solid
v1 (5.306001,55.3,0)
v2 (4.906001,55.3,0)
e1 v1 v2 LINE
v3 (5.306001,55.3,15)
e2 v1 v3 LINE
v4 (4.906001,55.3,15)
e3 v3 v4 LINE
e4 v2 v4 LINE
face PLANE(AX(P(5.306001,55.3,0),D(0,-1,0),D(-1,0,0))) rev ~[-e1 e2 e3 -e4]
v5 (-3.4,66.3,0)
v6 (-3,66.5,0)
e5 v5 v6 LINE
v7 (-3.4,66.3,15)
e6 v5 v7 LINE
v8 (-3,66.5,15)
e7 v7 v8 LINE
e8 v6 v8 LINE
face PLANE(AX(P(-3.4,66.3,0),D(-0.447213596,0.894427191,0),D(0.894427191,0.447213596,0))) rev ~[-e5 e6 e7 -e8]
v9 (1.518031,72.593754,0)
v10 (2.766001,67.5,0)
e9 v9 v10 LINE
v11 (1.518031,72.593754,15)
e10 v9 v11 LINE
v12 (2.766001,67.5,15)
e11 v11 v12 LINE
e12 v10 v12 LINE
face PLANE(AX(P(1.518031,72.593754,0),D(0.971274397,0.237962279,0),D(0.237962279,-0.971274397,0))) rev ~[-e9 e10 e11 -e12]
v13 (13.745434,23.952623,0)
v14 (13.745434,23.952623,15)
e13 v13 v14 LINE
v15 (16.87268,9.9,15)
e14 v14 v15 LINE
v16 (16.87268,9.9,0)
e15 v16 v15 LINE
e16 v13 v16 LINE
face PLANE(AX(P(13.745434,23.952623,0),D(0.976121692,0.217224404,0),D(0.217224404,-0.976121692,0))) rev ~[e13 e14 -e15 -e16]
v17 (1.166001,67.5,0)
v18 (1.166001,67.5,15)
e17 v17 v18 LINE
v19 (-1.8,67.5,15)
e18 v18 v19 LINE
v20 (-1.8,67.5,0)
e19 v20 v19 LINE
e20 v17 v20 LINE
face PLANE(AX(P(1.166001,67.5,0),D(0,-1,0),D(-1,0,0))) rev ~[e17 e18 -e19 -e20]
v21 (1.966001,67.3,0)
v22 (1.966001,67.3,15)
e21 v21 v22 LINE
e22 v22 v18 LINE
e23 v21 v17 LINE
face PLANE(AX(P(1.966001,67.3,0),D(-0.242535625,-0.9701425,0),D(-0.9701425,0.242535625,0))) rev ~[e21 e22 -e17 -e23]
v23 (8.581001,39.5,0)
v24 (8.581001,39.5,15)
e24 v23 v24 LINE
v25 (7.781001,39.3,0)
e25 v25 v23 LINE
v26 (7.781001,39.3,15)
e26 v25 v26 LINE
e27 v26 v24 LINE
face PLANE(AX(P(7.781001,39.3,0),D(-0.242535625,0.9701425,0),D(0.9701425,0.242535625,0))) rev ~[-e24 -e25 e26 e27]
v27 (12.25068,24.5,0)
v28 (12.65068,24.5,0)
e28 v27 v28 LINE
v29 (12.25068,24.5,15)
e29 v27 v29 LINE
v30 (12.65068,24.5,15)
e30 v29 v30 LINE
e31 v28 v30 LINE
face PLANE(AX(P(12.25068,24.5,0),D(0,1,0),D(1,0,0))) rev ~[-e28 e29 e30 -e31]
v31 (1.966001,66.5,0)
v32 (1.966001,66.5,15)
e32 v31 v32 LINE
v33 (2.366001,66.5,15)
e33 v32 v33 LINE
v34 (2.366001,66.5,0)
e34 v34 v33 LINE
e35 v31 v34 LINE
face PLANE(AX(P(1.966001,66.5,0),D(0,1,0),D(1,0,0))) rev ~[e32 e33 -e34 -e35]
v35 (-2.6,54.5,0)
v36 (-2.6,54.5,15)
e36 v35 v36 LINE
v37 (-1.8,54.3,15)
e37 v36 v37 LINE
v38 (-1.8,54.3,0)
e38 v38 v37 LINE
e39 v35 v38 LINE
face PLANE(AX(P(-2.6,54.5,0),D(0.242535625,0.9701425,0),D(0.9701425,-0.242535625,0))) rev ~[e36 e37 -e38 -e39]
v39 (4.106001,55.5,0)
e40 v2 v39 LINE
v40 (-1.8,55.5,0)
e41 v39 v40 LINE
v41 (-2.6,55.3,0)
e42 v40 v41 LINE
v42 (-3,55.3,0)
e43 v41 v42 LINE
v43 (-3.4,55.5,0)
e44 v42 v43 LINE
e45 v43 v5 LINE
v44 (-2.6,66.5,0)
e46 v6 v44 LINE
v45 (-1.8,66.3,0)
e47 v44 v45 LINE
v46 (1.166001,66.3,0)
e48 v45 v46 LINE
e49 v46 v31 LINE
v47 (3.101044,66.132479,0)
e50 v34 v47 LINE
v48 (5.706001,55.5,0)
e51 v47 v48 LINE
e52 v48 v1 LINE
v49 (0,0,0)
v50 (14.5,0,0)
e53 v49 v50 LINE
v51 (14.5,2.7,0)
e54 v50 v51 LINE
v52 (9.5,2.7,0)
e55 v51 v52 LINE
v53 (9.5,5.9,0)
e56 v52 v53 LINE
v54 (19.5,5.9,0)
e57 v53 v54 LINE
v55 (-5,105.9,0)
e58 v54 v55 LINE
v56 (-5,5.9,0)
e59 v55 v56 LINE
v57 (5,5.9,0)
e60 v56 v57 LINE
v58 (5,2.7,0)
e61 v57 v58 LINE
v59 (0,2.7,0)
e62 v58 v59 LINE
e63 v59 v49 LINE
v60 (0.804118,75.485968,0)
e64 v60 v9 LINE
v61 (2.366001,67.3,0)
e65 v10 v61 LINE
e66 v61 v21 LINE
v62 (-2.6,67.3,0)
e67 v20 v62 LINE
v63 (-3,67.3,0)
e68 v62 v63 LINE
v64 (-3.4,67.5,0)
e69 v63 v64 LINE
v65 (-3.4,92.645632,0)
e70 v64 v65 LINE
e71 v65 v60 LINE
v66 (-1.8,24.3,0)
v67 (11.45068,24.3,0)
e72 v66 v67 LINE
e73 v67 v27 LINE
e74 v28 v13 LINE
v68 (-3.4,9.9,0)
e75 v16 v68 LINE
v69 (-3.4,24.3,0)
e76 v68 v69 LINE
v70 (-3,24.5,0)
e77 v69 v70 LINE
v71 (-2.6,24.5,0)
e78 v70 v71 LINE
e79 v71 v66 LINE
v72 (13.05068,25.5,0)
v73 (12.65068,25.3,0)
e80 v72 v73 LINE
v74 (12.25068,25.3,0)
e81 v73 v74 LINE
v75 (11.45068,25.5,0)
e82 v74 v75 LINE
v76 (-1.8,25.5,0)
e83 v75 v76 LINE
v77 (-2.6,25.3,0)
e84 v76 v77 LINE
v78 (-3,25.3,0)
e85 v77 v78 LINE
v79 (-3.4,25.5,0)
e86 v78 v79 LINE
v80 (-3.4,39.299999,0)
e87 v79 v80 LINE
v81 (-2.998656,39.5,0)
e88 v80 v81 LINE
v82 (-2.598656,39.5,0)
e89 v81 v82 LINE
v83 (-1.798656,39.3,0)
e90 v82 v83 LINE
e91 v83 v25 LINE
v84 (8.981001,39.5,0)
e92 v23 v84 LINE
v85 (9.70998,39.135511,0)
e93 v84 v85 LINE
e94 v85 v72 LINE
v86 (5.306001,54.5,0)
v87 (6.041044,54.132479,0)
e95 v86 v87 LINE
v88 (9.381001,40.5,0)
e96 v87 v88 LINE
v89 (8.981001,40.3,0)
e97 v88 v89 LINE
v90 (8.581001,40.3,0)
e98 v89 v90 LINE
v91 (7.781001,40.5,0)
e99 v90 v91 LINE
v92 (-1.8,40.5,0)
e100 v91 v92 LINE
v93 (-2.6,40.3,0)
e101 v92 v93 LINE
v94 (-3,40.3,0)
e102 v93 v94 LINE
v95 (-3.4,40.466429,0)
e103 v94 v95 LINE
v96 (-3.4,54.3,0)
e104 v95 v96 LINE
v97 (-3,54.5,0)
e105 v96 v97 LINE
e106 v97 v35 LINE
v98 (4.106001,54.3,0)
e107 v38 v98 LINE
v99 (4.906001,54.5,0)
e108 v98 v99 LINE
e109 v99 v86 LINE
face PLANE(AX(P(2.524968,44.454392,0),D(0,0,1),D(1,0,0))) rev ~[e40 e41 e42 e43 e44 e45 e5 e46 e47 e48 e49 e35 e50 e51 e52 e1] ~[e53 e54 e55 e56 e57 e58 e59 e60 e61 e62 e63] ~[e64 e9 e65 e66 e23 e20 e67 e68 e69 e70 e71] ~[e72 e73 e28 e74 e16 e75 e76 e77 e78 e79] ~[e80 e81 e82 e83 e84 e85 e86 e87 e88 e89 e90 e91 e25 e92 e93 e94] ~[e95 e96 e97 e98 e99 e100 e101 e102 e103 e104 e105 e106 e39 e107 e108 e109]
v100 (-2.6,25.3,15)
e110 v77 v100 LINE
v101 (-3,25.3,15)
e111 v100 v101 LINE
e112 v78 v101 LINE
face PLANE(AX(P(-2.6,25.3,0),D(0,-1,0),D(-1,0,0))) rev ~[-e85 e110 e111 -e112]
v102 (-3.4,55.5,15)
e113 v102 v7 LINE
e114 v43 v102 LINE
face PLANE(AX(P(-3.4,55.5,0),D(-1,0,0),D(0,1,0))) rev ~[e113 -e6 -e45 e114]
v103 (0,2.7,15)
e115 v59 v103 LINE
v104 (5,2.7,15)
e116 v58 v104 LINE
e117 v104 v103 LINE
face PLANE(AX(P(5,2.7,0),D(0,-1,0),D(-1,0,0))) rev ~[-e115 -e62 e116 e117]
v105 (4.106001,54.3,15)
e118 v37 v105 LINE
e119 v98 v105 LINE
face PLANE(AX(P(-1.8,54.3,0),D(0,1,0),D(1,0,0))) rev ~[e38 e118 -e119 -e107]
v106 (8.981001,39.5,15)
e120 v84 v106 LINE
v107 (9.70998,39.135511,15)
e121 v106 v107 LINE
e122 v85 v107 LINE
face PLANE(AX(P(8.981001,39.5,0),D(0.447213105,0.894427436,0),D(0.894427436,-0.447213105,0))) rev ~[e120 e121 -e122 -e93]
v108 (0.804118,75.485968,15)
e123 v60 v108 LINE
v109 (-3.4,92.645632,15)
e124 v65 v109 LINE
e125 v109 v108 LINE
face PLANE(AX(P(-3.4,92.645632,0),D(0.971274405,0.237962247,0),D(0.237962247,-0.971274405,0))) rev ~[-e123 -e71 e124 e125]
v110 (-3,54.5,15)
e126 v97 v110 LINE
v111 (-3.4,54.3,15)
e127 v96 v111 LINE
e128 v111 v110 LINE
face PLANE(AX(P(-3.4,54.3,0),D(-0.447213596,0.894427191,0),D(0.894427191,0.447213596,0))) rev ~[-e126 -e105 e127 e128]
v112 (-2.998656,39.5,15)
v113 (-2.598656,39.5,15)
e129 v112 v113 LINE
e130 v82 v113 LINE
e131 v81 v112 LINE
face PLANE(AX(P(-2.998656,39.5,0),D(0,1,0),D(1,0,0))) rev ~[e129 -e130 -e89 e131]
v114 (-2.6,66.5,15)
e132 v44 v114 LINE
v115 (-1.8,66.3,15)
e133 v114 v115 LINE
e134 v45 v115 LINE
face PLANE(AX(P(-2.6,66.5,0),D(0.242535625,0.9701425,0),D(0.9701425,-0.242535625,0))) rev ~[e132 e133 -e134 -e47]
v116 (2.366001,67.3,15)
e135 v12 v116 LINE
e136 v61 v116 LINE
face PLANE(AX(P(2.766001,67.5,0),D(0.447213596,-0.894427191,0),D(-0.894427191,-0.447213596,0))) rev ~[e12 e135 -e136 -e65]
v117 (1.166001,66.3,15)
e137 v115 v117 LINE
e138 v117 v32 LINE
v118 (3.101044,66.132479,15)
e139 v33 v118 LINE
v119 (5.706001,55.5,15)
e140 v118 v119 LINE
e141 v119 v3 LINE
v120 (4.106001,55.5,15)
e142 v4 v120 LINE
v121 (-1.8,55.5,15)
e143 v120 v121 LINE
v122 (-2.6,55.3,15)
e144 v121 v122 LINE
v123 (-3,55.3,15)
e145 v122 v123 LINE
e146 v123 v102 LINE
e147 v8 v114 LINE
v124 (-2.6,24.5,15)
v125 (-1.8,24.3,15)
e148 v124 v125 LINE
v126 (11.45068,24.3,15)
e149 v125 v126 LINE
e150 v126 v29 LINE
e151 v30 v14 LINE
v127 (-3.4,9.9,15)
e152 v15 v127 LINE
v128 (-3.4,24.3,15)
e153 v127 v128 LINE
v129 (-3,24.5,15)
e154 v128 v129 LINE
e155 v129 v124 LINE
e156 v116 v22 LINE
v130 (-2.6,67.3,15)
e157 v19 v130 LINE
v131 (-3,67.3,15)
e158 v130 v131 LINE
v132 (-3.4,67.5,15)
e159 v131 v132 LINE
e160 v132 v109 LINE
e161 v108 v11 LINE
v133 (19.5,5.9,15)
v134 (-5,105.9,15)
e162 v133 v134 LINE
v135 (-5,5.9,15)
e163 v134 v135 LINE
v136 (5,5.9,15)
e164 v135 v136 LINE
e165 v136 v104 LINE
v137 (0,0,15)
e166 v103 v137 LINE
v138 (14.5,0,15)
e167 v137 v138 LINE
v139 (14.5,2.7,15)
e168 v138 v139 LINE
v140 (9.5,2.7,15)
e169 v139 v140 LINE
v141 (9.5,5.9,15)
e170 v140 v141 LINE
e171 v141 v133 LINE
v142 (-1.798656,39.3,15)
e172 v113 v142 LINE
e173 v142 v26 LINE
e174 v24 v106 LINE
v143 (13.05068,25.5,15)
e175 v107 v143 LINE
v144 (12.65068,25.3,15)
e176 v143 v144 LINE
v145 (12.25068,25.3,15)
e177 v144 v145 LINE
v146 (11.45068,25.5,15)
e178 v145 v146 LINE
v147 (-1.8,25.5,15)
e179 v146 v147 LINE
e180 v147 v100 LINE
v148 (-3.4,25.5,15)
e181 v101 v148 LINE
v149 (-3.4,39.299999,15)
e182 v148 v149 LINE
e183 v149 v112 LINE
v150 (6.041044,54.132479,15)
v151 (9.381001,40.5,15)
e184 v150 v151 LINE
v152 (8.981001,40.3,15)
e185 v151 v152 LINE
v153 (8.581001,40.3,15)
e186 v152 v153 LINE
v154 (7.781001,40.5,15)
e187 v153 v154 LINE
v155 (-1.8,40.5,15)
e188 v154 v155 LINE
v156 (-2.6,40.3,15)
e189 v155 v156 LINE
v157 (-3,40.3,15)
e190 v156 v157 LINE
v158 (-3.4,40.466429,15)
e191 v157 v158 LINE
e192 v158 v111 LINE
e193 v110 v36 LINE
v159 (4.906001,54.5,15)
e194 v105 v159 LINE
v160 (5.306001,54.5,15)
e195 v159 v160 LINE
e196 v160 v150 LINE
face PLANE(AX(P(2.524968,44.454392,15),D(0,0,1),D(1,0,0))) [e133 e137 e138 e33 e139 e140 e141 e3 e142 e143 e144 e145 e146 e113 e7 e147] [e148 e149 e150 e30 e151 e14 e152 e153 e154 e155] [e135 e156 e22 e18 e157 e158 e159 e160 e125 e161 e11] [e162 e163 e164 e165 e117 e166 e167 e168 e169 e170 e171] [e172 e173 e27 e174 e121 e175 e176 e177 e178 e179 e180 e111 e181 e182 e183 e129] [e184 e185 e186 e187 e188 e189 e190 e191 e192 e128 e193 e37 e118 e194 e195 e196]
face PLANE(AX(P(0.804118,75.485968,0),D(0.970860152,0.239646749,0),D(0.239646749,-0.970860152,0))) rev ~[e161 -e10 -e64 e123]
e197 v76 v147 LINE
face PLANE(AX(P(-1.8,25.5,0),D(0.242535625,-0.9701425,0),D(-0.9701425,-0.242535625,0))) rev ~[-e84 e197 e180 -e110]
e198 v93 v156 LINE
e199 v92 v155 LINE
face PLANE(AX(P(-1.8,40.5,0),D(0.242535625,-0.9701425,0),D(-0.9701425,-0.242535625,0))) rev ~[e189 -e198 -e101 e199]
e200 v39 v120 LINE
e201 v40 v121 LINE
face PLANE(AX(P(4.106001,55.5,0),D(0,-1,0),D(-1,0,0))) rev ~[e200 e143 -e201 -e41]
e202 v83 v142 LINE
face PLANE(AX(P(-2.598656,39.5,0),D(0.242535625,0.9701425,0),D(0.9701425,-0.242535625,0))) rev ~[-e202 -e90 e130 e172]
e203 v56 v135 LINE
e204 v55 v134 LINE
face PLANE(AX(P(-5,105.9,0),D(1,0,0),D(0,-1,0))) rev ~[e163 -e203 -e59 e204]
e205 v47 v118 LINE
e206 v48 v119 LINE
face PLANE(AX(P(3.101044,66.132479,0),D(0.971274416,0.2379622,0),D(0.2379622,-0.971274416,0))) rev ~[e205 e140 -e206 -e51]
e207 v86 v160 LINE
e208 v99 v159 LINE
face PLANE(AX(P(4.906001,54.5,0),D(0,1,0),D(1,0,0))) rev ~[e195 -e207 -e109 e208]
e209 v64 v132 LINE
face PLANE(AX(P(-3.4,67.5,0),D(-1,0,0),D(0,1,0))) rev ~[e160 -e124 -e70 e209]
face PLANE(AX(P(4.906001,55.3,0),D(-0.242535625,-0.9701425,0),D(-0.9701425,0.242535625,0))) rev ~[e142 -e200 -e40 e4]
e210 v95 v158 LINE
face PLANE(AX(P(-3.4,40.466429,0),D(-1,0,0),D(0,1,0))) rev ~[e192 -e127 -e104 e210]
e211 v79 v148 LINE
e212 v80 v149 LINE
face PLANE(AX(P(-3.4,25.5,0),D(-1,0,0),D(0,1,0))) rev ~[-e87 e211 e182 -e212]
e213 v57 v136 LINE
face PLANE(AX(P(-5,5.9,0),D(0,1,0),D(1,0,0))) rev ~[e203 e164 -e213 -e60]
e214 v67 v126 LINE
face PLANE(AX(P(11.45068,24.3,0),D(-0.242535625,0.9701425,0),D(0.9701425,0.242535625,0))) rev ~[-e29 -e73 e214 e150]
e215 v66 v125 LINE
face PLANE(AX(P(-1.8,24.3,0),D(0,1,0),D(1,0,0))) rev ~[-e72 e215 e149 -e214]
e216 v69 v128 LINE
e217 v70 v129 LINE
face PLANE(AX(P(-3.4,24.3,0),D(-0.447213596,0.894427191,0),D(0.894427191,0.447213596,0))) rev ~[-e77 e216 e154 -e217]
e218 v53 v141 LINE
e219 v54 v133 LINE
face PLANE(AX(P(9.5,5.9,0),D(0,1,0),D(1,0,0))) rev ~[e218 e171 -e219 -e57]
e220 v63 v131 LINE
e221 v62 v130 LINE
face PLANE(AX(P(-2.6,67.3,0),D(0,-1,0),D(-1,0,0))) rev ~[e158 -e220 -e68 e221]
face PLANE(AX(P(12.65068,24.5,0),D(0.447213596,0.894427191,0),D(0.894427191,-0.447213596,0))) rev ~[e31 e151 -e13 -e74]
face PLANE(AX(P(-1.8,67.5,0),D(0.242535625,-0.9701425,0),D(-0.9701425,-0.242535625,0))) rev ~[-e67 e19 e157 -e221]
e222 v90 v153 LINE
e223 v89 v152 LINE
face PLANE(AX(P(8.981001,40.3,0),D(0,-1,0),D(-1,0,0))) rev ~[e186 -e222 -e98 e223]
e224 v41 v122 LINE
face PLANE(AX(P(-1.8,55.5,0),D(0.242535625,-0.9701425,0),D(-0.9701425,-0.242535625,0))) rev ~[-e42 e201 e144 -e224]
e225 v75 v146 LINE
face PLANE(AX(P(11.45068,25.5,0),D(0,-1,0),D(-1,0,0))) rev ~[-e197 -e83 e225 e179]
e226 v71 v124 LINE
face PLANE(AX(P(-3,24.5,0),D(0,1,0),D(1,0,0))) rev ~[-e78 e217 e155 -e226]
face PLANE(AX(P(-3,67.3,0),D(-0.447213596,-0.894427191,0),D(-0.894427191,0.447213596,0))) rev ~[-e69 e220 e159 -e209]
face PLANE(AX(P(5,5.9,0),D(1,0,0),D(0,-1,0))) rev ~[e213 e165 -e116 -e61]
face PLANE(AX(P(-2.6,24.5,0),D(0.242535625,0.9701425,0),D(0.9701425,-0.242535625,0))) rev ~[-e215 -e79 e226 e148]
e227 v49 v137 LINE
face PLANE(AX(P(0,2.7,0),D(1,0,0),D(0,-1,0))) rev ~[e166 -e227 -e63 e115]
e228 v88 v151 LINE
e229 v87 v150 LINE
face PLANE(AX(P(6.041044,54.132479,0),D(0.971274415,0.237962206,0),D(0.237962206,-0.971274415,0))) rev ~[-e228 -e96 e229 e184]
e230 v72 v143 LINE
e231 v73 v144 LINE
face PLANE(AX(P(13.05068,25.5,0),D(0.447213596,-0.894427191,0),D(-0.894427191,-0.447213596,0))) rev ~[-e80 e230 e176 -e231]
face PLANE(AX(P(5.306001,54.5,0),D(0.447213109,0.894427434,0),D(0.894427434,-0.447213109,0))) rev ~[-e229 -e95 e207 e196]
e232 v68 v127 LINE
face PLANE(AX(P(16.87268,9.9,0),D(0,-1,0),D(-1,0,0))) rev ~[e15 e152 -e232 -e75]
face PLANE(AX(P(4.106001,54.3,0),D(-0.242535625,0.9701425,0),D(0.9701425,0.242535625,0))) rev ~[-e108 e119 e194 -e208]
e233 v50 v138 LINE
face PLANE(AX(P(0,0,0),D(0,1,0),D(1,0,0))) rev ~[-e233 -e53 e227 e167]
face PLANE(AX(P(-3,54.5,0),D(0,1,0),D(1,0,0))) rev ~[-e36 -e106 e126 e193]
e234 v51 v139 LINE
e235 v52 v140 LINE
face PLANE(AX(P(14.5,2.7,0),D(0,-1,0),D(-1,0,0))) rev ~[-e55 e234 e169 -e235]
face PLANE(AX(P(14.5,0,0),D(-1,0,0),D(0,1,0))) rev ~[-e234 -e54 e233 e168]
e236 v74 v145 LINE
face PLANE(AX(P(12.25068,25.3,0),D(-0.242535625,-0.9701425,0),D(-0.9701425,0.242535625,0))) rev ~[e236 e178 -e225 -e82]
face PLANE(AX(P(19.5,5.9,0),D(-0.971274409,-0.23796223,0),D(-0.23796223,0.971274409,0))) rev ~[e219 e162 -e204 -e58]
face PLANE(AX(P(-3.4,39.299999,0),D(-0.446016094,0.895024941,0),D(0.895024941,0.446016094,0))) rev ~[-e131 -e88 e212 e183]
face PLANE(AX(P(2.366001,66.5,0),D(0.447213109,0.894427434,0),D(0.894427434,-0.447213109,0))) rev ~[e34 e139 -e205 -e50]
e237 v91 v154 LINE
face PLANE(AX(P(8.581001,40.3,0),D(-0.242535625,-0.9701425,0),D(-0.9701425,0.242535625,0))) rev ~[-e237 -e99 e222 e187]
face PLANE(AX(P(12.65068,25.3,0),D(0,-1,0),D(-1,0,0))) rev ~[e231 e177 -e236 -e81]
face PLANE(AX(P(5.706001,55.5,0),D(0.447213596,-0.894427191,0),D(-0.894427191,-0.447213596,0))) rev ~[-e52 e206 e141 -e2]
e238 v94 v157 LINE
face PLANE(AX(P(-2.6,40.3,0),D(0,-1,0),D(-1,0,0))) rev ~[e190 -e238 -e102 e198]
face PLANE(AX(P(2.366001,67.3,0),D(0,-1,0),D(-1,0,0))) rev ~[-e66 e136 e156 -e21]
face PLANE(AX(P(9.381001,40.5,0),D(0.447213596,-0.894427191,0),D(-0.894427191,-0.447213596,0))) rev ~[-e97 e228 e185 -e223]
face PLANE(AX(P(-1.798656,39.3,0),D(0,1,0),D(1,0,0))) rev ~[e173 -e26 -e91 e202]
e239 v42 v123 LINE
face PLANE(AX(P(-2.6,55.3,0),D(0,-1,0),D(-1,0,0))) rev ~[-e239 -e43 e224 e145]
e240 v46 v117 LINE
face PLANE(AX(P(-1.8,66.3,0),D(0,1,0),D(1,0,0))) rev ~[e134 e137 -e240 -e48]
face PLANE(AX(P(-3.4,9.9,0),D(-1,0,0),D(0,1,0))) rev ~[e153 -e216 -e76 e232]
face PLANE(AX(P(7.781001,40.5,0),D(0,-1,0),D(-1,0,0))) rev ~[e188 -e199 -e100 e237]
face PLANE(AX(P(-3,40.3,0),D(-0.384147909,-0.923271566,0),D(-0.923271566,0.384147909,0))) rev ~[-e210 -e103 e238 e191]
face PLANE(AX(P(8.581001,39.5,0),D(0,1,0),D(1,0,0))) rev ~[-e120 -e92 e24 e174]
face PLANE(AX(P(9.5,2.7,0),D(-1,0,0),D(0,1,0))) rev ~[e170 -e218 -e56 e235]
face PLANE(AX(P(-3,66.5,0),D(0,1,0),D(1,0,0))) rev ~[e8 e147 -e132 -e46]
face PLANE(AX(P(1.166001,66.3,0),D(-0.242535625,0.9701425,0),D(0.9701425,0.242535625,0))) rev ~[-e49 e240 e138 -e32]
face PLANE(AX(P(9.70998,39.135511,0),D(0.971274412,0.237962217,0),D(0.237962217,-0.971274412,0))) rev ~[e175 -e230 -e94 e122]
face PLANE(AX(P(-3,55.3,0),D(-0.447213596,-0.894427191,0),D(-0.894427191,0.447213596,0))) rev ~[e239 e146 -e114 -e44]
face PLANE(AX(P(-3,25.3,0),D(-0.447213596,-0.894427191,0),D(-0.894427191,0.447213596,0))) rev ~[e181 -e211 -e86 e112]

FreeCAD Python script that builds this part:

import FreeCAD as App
import Part
import Sketcher

doc = App.newDocument("Part")
body = doc.addObject("PartDesign::Body", "Body")

sketch1 = body.newObject("Sketcher::SketchObject", "Sketch")
sketch1.AttachmentSupport = (doc.getObject("XY_Plane"), [""])
sketch1.MapMode = "FlatFace"
sketch1.addGeometry(Part.LineSegment(App.Vector(0, 2.7, 0), App.Vector(0, 0, 0)), False)
sketch1.addGeometry(Part.LineSegment(App.Vector(0, 0, 0), App.Vector(14.5, 0, 0)), False)
sketch1.addGeometry(Part.LineSegment(App.Vector(14.5, 0, 0), App.Vector(14.5, 2.7, 0)), False)
sketch1.addGeometry(Part.LineSegment(App.Vector(14.5, 2.7, 0), App.Vector(9.5, 2.7, 0)), False)
sketch1.addGeometry(Part.LineSegment(App.Vector(9.5, 2.7, 0), App.Vector(9.5, 5.9, 0)), False)
sketch1.addGeometry(Part.LineSegment(App.Vector(9.5, 5.9, 0), App.Vector(19.5, 5.9, 0)), False)
sketch1.addGeometry(Part.LineSegment(App.Vector(19.5, 5.9, 0), App.Vector(-5, 105.9, 0)), False)
sketch1.addGeometry(Part.LineSegment(App.Vector(-5, 105.9, 0), App.Vector(-5, 5.9, 0)), False)
sketch1.addGeometry(Part.LineSegment(App.Vector(-5, 5.9, 0), App.Vector(5, 5.9, 0)), False)
sketch1.addGeometry(Part.LineSegment(App.Vector(5, 5.9, 0), App.Vector(5, 2.7, 0)), False)
sketch1.addGeometry(Part.LineSegment(App.Vector(5, 2.7, 0), App.Vector(0, 2.7, 0)), False)
sketch1.addGeometry(Part.LineSegment(App.Vector(8.58, 39.5, 0), App.Vector(8.98, 39.5, 0)), False)
sketch1.addGeometry(Part.LineSegment(App.Vector(8.98, 39.5, 0), App.Vector(9.71, 39.14, 0)), False)
sketch1.addGeometry(Part.LineSegment(App.Vector(9.71, 39.14, 0), App.Vector(13.05, 25.5, 0)), False)
sketch1.addGeometry(Part.LineSegment(App.Vector(13.05, 25.5, 0), App.Vector(12.65, 25.3, 0)), False)
sketch1.addGeometry(Part.LineSegment(App.Vector(12.65, 25.3, 0), App.Vector(12.25, 25.3, 0)), False)
sketch1.addGeometry(Part.LineSegment(App.Vector(12.25, 25.3, 0), App.Vector(11.45, 25.5, 0)), False)
sketch1.addGeometry(Part.LineSegment(App.Vector(11.45, 25.5, 0), App.Vector(-1.8, 25.5, 0)), False)
sketch1.addGeometry(Part.LineSegment(App.Vector(-1.8, 25.5, 0), App.Vector(-2.6, 25.3, 0)), False)
sketch1.addGeometry(Part.LineSegment(App.Vector(-2.6, 25.3, 0), App.Vector(-3, 25.3, 0)), False)
sketch1.addGeometry(Part.LineSegment(App.Vector(-3, 25.3, 0), App.Vector(-3.4, 25.5, 0)), False)
sketch1.addGeometry(Part.LineSegment(App.Vector(-3.4, 25.5, 0), App.Vector(-3.4, 39.3, 0)), False)
sketch1.addGeometry(Part.LineSegment(App.Vector(-3.4, 39.3, 0), App.Vector(-3, 39.5, 0)), False)
sketch1.addGeometry(Part.LineSegment(App.Vector(-3, 39.5, 0), App.Vector(-2.6, 39.5, 0)), False)
sketch1.addGeometry(Part.LineSegment(App.Vector(-2.6, 39.5, 0), App.Vector(-1.8, 39.3, 0)), False)
sketch1.addGeometry(Part.LineSegment(App.Vector(-1.8, 39.3, 0), App.Vector(7.78, 39.3, 0)), False)
sketch1.addGeometry(Part.LineSegment(App.Vector(7.78, 39.3, 0), App.Vector(8.58, 39.5, 0)), False)
sketch1.addGeometry(Part.LineSegment(App.Vector(4.91, 54.5, 0), App.Vector(5.31, 54.5, 0)), False)
sketch1.addGeometry(Part.LineSegment(App.Vector(5.31, 54.5, 0), App.Vector(6.04, 54.13, 0)), False)
sketch1.addGeometry(Part.LineSegment(App.Vector(6.04, 54.13, 0), App.Vector(9.38, 40.5, 0)), False)
sketch1.addGeometry(Part.LineSegment(App.Vector(9.38, 40.5, 0), App.Vector(8.98, 40.3, 0)), False)
sketch1.addGeometry(Part.LineSegment(App.Vector(8.98, 40.3, 0), App.Vector(8.58, 40.3, 0)), False)
sketch1.addGeometry(Part.LineSegment(App.Vector(8.58, 40.3, 0), App.Vector(7.78, 40.5, 0)), False)
sketch1.addGeometry(Part.LineSegment(App.Vector(7.78, 40.5, 0), App.Vector(-1.8, 40.5, 0)), False)
sketch1.addGeometry(Part.LineSegment(App.Vector(-1.8, 40.5, 0), App.Vector(-2.6, 40.3, 0)), False)
sketch1.addGeometry(Part.LineSegment(App.Vector(-2.6, 40.3, 0), App.Vector(-3, 40.3, 0)), False)
sketch1.addGeometry(Part.LineSegment(App.Vector(-3, 40.3, 0), App.Vector(-3.4, 40.47, 0)), False)
sketch1.addGeometry(Part.LineSegment(App.Vector(-3.4, 40.47, 0), App.Vector(-3.4, 54.3, 0)), False)
sketch1.addGeometry(Part.LineSegment(App.Vector(-3.4, 54.3, 0), App.Vector(-3, 54.5, 0)), False)
sketch1.addGeometry(Part.LineSegment(App.Vector(-3, 54.5, 0), App.Vector(-2.6, 54.5, 0)), False)
sketch1.addGeometry(Part.LineSegment(App.Vector(-2.6, 54.5, 0), App.Vector(-1.8, 54.3, 0)), False)
sketch1.addGeometry(Part.LineSegment(App.Vector(-1.8, 54.3, 0), App.Vector(4.11, 54.3, 0)), False)
sketch1.addGeometry(Part.LineSegment(App.Vector(4.11, 54.3, 0), App.Vector(4.91, 54.5, 0)), False)
sketch1.addGeometry(Part.LineSegment(App.Vector(13.75, 23.95, 0), App.Vector(16.87, 9.9, 0)), False)
sketch1.addGeometry(Part.LineSegment(App.Vector(16.87, 9.9, 0), App.Vector(-3.4, 9.9, 0)), False)
sketch1.addGeometry(Part.LineSegment(App.Vector(-3.4, 9.9, 0), App.Vector(-3.4, 24.3, 0)), False)
sketch1.addGeometry(Part.LineSegment(App.Vector(-3.4, 24.3, 0), App.Vector(-3, 24.5, 0)), False)
sketch1.addGeometry(Part.LineSegment(App.Vector(-3, 24.5, 0), App.Vector(-2.6, 24.5, 0)), False)
sketch1.addGeometry(Part.LineSegment(App.Vector(-2.6, 24.5, 0), App.Vector(-1.8, 24.3, 0)), False)
sketch1.addGeometry(Part.LineSegment(App.Vector(-1.8, 24.3, 0), App.Vector(11.45, 24.3, 0)), False)
sketch1.addGeometry(Part.LineSegment(App.Vector(11.45, 24.3, 0), App.Vector(12.25, 24.5, 0)), False)
sketch1.addGeometry(Part.LineSegment(App.Vector(12.25, 24.5, 0), App.Vector(12.65, 24.5, 0)), False)
sketch1.addGeometry(Part.LineSegment(App.Vector(12.65, 24.5, 0), App.Vector(13.75, 23.95, 0)), False)
sketch1.addGeometry(Part.LineSegment(App.Vector(1.97, 66.5, 0), App.Vector(2.37, 66.5, 0)), False)
sketch1.addGeometry(Part.LineSegment(App.Vector(2.37, 66.5, 0), App.Vector(3.1, 66.13, 0)), False)
sketch1.addGeometry(Part.LineSegment(App.Vector(3.1, 66.13, 0), App.Vector(5.71, 55.5, 0)), False)
sketch1.addGeometry(Part.LineSegment(App.Vector(5.71, 55.5, 0), App.Vector(5.31, 55.3, 0)), False)
sketch1.addGeometry(Part.LineSegment(App.Vector(5.31, 55.3, 0), App.Vector(4.91, 55.3, 0)), False)
sketch1.addGeometry(Part.LineSegment(App.Vector(4.91, 55.3, 0), App.Vector(4.11, 55.5, 0)), False)
sketch1.addGeometry(Part.LineSegment(App.Vector(4.11, 55.5, 0), App.Vector(-1.8, 55.5, 0)), False)
sketch1.addGeometry(Part.LineSegment(App.Vector(-1.8, 55.5, 0), App.Vector(-2.6, 55.3, 0)), False)
sketch1.addGeometry(Part.LineSegment(App.Vector(-2.6, 55.3, 0), App.Vector(-3, 55.3, 0)), False)
sketch1.addGeometry(Part.LineSegment(App.Vector(-3, 55.3, 0), App.Vector(-3.4, 55.5, 0)), False)
sketch1.addGeometry(Part.LineSegment(App.Vector(-3.4, 55.5, 0), App.Vector(-3.4, 66.3, 0)), False)
sketch1.addGeometry(Part.LineSegment(App.Vector(-3.4, 66.3, 0), App.Vector(-3, 66.5, 0)), False)
sketch1.addGeometry(Part.LineSegment(App.Vector(-3, 66.5, 0), App.Vector(-2.6, 66.5, 0)), False)
sketch1.addGeometry(Part.LineSegment(App.Vector(-2.6, 66.5, 0), App.Vector(-1.8, 66.3, 0)), False)
sketch1.addGeometry(Part.LineSegment(App.Vector(-1.8, 66.3, 0), App.Vector(1.17, 66.3, 0)), False)
sketch1.addGeometry(Part.LineSegment(App.Vector(1.17, 66.3, 0), App.Vector(1.97, 66.5, 0)), False)
sketch1.addGeometry(Part.LineSegment(App.Vector(-3.4, 67.5, 0), App.Vector(-3.4, 92.65, 0)), False)
sketch1.addGeometry(Part.LineSegment(App.Vector(-3.4, 92.65, 0), App.Vector(0.8, 75.49, 0)), False)
sketch1.addGeometry(Part.LineSegment(App.Vector(0.8, 75.49, 0), App.Vector(1.52, 72.59, 0)), False)
sketch1.addGeometry(Part.LineSegment(App.Vector(1.52, 72.59, 0), App.Vector(2.77, 67.5, 0)), False)
sketch1.addGeometry(Part.LineSegment(App.Vector(2.77, 67.5, 0), App.Vector(2.37, 67.3, 0)), False)
sketch1.addGeometry(Part.LineSegment(App.Vector(2.37, 67.3, 0), App.Vector(1.97, 67.3, 0)), False)
sketch1.addGeometry(Part.LineSegment(App.Vector(1.97, 67.3, 0), App.Vector(1.17, 67.5, 0)), False)
sketch1.addGeometry(Part.LineSegment(App.Vector(1.17, 67.5, 0), App.Vector(-1.8, 67.5, 0)), False)
sketch1.addGeometry(Part.LineSegment(App.Vector(-1.8, 67.5, 0), App.Vector(-2.6, 67.3, 0)), False)
sketch1.addGeometry(Part.LineSegment(App.Vector(-2.6, 67.3, 0), App.Vector(-3, 67.3, 0)), False)
sketch1.addGeometry(Part.LineSegment(App.Vector(-3, 67.3, 0), App.Vector(-3.4, 67.5, 0)), False)
sketch1.addConstraint(Sketcher.Constraint("Coincident", 0, 2, 1, 1))
sketch1.addConstraint(Sketcher.Constraint("Coincident", 1, 2, 2, 1))
sketch1.addConstraint(Sketcher.Constraint("Coincident", 2, 2, 3, 1))
sketch1.addConstraint(Sketcher.Constraint("Coincident", 3, 2, 4, 1))
sketch1.addConstraint(Sketcher.Constraint("Coincident", 4, 2, 5, 1))
sketch1.addConstraint(Sketcher.Constraint("Coincident", 5, 2, 6, 1))
sketch1.addConstraint(Sketcher.Constraint("Coincident", 6, 2, 7, 1))
sketch1.addConstraint(Sketcher.Constraint("Coincident", 7, 2, 8, 1))
sketch1.addConstraint(Sketcher.Constraint("Coincident", 8, 2, 9, 1))
sketch1.addConstraint(Sketcher.Constraint("Coincident", 9, 2, 10, 1))
sketch1.addConstraint(Sketcher.Constraint("Coincident", 10, 2, 0, 1))
sketch1.addConstraint(Sketcher.Constraint("Coincident", 11, 2, 12, 1))
sketch1.addConstraint(Sketcher.Constraint("Coincident", 12, 2, 13, 1))
sketch1.addConstraint(Sketcher.Constraint("Coincident", 13, 2, 14, 1))
sketch1.addConstraint(Sketcher.Constraint("Coincident", 14, 2, 15, 1))
sketch1.addConstraint(Sketcher.Constraint("Coincident", 15, 2, 16, 1))
sketch1.addConstraint(Sketcher.Constraint("Coincident", 16, 2, 17, 1))
sketch1.addConstraint(Sketcher.Constraint("Coincident", 17, 2, 18, 1))
sketch1.addConstraint(Sketcher.Constraint("Coincident", 18, 2, 19, 1))
sketch1.addConstraint(Sketcher.Constraint("Coincident", 19, 2, 20, 1))
sketch1.addConstraint(Sketcher.Constraint("Coincident", 20, 2, 21, 1))
sketch1.addConstraint(Sketcher.Constraint("Coincident", 21, 2, 22, 1))
sketch1.addConstraint(Sketcher.Constraint("Coincident", 22, 2, 23, 1))
sketch1.addConstraint(Sketcher.Constraint("Coincident", 23, 2, 24, 1))
sketch1.addConstraint(Sketcher.Constraint("Coincident", 24, 2, 25, 1))
sketch1.addConstraint(Sketcher.Constraint("Coincident", 25, 2, 26, 1))
sketch1.addConstraint(Sketcher.Constraint("Coincident", 26, 2, 11, 1))
sketch1.addConstraint(Sketcher.Constraint("Coincident", 27, 2, 28, 1))
sketch1.addConstraint(Sketcher.Constraint("Coincident", 28, 2, 29, 1))
sketch1.addConstraint(Sketcher.Constraint("Coincident", 29, 2, 30, 1))
sketch1.addConstraint(Sketcher.Constraint("Coincident", 30, 2, 31, 1))
sketch1.addConstraint(Sketcher.Constraint("Coincident", 31, 2, 32, 1))
sketch1.addConstraint(Sketcher.Constraint("Coincident", 32, 2, 33, 1))
sketch1.addConstraint(Sketcher.Constraint("Coincident", 33, 2, 34, 1))
sketch1.addConstraint(Sketcher.Constraint("Coincident", 34, 2, 35, 1))
sketch1.addConstraint(Sketcher.Constraint("Coincident", 35, 2, 36, 1))
sketch1.addConstraint(Sketcher.Constraint("Coincident", 36, 2, 37, 1))
sketch1.addConstraint(Sketcher.Constraint("Coincident", 37, 2, 38, 1))
sketch1.addConstraint(Sketcher.Constraint("Coincident", 38, 2, 39, 1))
sketch1.addConstraint(Sketcher.Constraint("Coincident", 39, 2, 40, 1))
sketch1.addConstraint(Sketcher.Constraint("Coincident", 40, 2, 41, 1))
sketch1.addConstraint(Sketcher.Constraint("Coincident", 41, 2, 42, 1))
sketch1.addConstraint(Sketcher.Constraint("Coincident", 42, 2, 27, 1))
sketch1.addConstraint(Sketcher.Constraint("Coincident", 43, 2, 44, 1))
sketch1.addConstraint(Sketcher.Constraint("Coincident", 44, 2, 45, 1))
sketch1.addConstraint(Sketcher.Constraint("Coincident", 45, 2, 46, 1))
sketch1.addConstraint(Sketcher.Constraint("Coincident", 46, 2, 47, 1))
sketch1.addConstraint(Sketcher.Constraint("Coincident", 47, 2, 48, 1))
sketch1.addConstraint(Sketcher.Constraint("Coincident", 48, 2, 49, 1))
sketch1.addConstraint(Sketcher.Constraint("Coincident", 49, 2, 50, 1))
sketch1.addConstraint(Sketcher.Constraint("Coincident", 50, 2, 51, 1))
sketch1.addConstraint(Sketcher.Constraint("Coincident", 51, 2, 52, 1))
sketch1.addConstraint(Sketcher.Constraint("Coincident", 52, 2, 43, 1))
sketch1.addConstraint(Sketcher.Constraint("Coincident", 53, 2, 54, 1))
sketch1.addConstraint(Sketcher.Constraint("Coincident", 54, 2, 55, 1))
sketch1.addConstraint(Sketcher.Constraint("Coincident", 55, 2, 56, 1))
sketch1.addConstraint(Sketcher.Constraint("Coincident", 56, 2, 57, 1))
sketch1.addConstraint(Sketcher.Constraint("Coincident", 57, 2, 58, 1))
sketch1.addConstraint(Sketcher.Constraint("Coincident", 58, 2, 59, 1))
sketch1.addConstraint(Sketcher.Constraint("Coincident", 59, 2, 60, 1))
sketch1.addConstraint(Sketcher.Constraint("Coincident", 60, 2, 61, 1))
sketch1.addConstraint(Sketcher.Constraint("Coincident", 61, 2, 62, 1))
sketch1.addConstraint(Sketcher.Constraint("Coincident", 62, 2, 63, 1))
sketch1.addConstraint(Sketcher.Constraint("Coincident", 63, 2, 64, 1))
sketch1.addConstraint(Sketcher.Constraint("Coincident", 64, 2, 65, 1))
sketch1.addConstraint(Sketcher.Constraint("Coincident", 65, 2, 66, 1))
sketch1.addConstraint(Sketcher.Constraint("Coincident", 66, 2, 67, 1))
sketch1.addConstraint(Sketcher.Constraint("Coincident", 67, 2, 68, 1))
sketch1.addConstraint(Sketcher.Constraint("Coincident", 68, 2, 53, 1))
sketch1.addConstraint(Sketcher.Constraint("Coincident", 69, 2, 70, 1))
sketch1.addConstraint(Sketcher.Constraint("Coincident", 70, 2, 71, 1))
sketch1.addConstraint(Sketcher.Constraint("Coincident", 71, 2, 72, 1))
sketch1.addConstraint(Sketcher.Constraint("Coincident", 72, 2, 73, 1))
sketch1.addConstraint(Sketcher.Constraint("Coincident", 73, 2, 74, 1))
sketch1.addConstraint(Sketcher.Constraint("Coincident", 74, 2, 75, 1))
sketch1.addConstraint(Sketcher.Constraint("Coincident", 75, 2, 76, 1))
sketch1.addConstraint(Sketcher.Constraint("Coincident", 76, 2, 77, 1))
sketch1.addConstraint(Sketcher.Constraint("Coincident", 77, 2, 78, 1))
sketch1.addConstraint(Sketcher.Constraint("Coincident", 78, 2, 79, 1))
sketch1.addConstraint(Sketcher.Constraint("Coincident", 79, 2, 69, 1))
sketch1.addConstraint(Sketcher.Constraint("Vertical", 0))
sketch1.addConstraint(Sketcher.Constraint("Horizontal", 1))
sketch1.addConstraint(Sketcher.Constraint("Vertical", 2))
sketch1.addConstraint(Sketcher.Constraint("Horizontal", 3))
sketch1.addConstraint(Sketcher.Constraint("Vertical", 4))
sketch1.addConstraint(Sketcher.Constraint("Horizontal", 5))
sketch1.addConstraint(Sketcher.Constraint("Vertical", 7))
sketch1.addConstraint(Sketcher.Constraint("Horizontal", 8))
sketch1.addConstraint(Sketcher.Constraint("Vertical", 9))
sketch1.addConstraint(Sketcher.Constraint("Horizontal", 10))
sketch1.addConstraint(Sketcher.Constraint("Horizontal", 11))
sketch1.addConstraint(Sketcher.Constraint("Horizontal", 15))
sketch1.addConstraint(Sketcher.Constraint("Horizontal", 17))
sketch1.addConstraint(Sketcher.Constraint("Horizontal", 19))
sketch1.addConstraint(Sketcher.Constraint("Vertical", 21))
sketch1.addConstraint(Sketcher.Constraint("Horizontal", 23))
sketch1.addConstraint(Sketcher.Constraint("Horizontal", 25))
sketch1.addConstraint(Sketcher.Constraint("Horizontal", 27))
sketch1.addConstraint(Sketcher.Constraint("Horizontal", 31))
sketch1.addConstraint(Sketcher.Constraint("Horizontal", 33))
sketch1.addConstraint(Sketcher.Constraint("Horizontal", 35))
sketch1.addConstraint(Sketcher.Constraint("Vertical", 37))
sketch1.addConstraint(Sketcher.Constraint("Horizontal", 39))
sketch1.addConstraint(Sketcher.Constraint("Horizontal", 41))
sketch1.addConstraint(Sketcher.Constraint("Horizontal", 44))
sketch1.addConstraint(Sketcher.Constraint("Vertical", 45))
sketch1.addConstraint(Sketcher.Constraint("Horizontal", 47))
sketch1.addConstraint(Sketcher.Constraint("Horizontal", 49))
sketch1.addConstraint(Sketcher.Constraint("Horizontal", 51))
sketch1.addConstraint(Sketcher.Constraint("Horizontal", 53))
sketch1.addConstraint(Sketcher.Constraint("Horizontal", 57))
sketch1.addConstraint(Sketcher.Constraint("Horizontal", 59))
sketch1.addConstraint(Sketcher.Constraint("Horizontal", 61))
sketch1.addConstraint(Sketcher.Constraint("Vertical", 63))
sketch1.addConstraint(Sketcher.Constraint("Horizontal", 65))
sketch1.addConstraint(Sketcher.Constraint("Horizontal", 67))
sketch1.addConstraint(Sketcher.Constraint("Vertical", 69))
sketch1.addConstraint(Sketcher.Constraint("Horizontal", 74))
sketch1.addConstraint(Sketcher.Constraint("Horizontal", 76))
sketch1.addConstraint(Sketcher.Constraint("Horizontal", 78))
sketch1.addConstraint(Sketcher.Constraint("Coincident", 0, 2, -1, 1))
sketch1.addConstraint(Sketcher.Constraint("Parallel", 6, 13))
sketch1.addConstraint(Sketcher.Constraint("Parallel", 12, 20))
sketch1.addConstraint(Sketcher.Constraint("Parallel", 16, 24))
sketch1.addConstraint(Sketcher.Constraint("Parallel", 18, 26))
sketch1.addConstraint(Sketcher.Constraint("Parallel", 20, 28))
sketch1.addConstraint(Sketcher.Constraint("Parallel", 13, 29))
sketch1.addConstraint(Sketcher.Constraint("Parallel", 14, 30))
sketch1.addConstraint(Sketcher.Constraint("Parallel", 24, 32))
sketch1.addConstraint(Sketcher.Constraint("Parallel", 26, 34))
sketch1.addConstraint(Sketcher.Constraint("Parallel", 30, 38))
sketch1.addConstraint(Sketcher.Constraint("Parallel", 32, 40))
sketch1.addConstraint(Sketcher.Constraint("Parallel", 34, 42))
sketch1.addConstraint(Sketcher.Constraint("Parallel", 38, 46))
sketch1.addConstraint(Sketcher.Constraint("Parallel", 40, 48))
sketch1.addConstraint(Sketcher.Constraint("Parallel", 42, 50))
sketch1.addConstraint(Sketcher.Constraint("Parallel", 28, 52))
sketch1.addConstraint(Sketcher.Constraint("Parallel", 52, 54))
sketch1.addConstraint(Sketcher.Constraint("Parallel", 29, 55))
sketch1.addConstraint(Sketcher.Constraint("Parallel", 46, 56))
sketch1.addConstraint(Sketcher.Constraint("Parallel", 48, 58))
sketch1.addConstraint(Sketcher.Constraint("Parallel", 50, 60))
sketch1.addConstraint(Sketcher.Constraint("Parallel", 54, 62))
sketch1.addConstraint(Sketcher.Constraint("Parallel", 56, 64))
sketch1.addConstraint(Sketcher.Constraint("Parallel", 58, 66))
sketch1.addConstraint(Sketcher.Constraint("Parallel", 60, 68))
sketch1.addConstraint(Sketcher.Constraint("Parallel", 55, 70))
sketch1.addConstraint(Sketcher.Constraint("Parallel", 70, 72))
sketch1.addConstraint(Sketcher.Constraint("Parallel", 64, 73))
sketch1.addConstraint(Sketcher.Constraint("Parallel", 66, 75))
sketch1.addConstraint(Sketcher.Constraint("Parallel", 68, 77))
sketch1.addConstraint(Sketcher.Constraint("Parallel", 62, 79))
sketch1.addConstraint(Sketcher.Constraint("Horizontal", 5, 2, 7, 2))
sketch1.addConstraint(Sketcher.Constraint("Horizontal", 3, 2, 9, 2))
sketch1.addConstraint(Sketcher.Constraint("Horizontal", 13, 2, 16, 2))
sketch1.addConstraint(Sketcher.Constraint("Horizontal", 15, 2, 18, 2))
sketch1.addConstraint(Sketcher.Constraint("Horizontal", 17, 2, 20, 2))
sketch1.addConstraint(Sketcher.Constraint("Horizontal", 11, 2, 22, 2))
sketch1.addConstraint(Sketcher.Constraint("Horizontal", 21, 2, 24, 2))
sketch1.addConstraint(Sketcher.Constraint("Horizontal", 29, 2, 32, 2))
sketch1.addConstraint(Sketcher.Constraint("Horizontal", 31, 2, 34, 2))
sketch1.addConstraint(Sketcher.Constraint("Horizontal", 27, 2, 38, 2))
sketch1.addConstraint(Sketcher.Constraint("Horizontal", 37, 2, 40, 2))
sketch1.addConstraint(Sketcher.Constraint("Horizontal", 45, 2, 48, 2))
sketch1.addConstraint(Sketcher.Constraint("Horizontal", 47, 2, 50, 2))
sketch1.addConstraint(Sketcher.Constraint("Horizontal", 55, 2, 58, 2))
sketch1.addConstraint(Sketcher.Constraint("Horizontal", 57, 2, 60, 2))
sketch1.addConstraint(Sketcher.Constraint("Horizontal", 59, 2, 62, 2))
sketch1.addConstraint(Sketcher.Constraint("Horizontal", 53, 2, 64, 2))
sketch1.addConstraint(Sketcher.Constraint("Horizontal", 63, 2, 66, 2))
sketch1.addConstraint(Sketcher.Constraint("Horizontal", 72, 2, 75, 2))
sketch1.addConstraint(Sketcher.Constraint("Horizontal", 74, 2, 77, 2))
sketch1.addConstraint(Sketcher.Constraint("Horizontal", 76, 2, 79, 2))
sketch1.addConstraint(Sketcher.Constraint("Vertical", 11, 2, 30, 2))
sketch1.addConstraint(Sketcher.Constraint("Vertical", 26, 2, 31, 2))
sketch1.addConstraint(Sketcher.Constraint("Vertical", 25, 2, 32, 2))
sketch1.addConstraint(Sketcher.Constraint("Vertical", 17, 2, 33, 2))
sketch1.addConstraint(Sketcher.Constraint("Vertical", 18, 2, 34, 2))
sketch1.addConstraint(Sketcher.Constraint("Vertical", 19, 2, 35, 2))
sketch1.addConstraint(Sketcher.Constraint("Vertical", 21, 2, 36, 2))
sketch1.addConstraint(Sketcher.Constraint("Vertical", 35, 2, 38, 2))
sketch1.addConstraint(Sketcher.Constraint("Vertical", 34, 2, 39, 2))
sketch1.addConstraint(Sketcher.Constraint("Vertical", 33, 2, 40, 2))
sketch1.addConstraint(Sketcher.Constraint("Vertical", 37, 2, 44, 2))
sketch1.addConstraint(Sketcher.Constraint("Vertical", 38, 2, 46, 2))
sketch1.addConstraint(Sketcher.Constraint("Vertical", 39, 2, 47, 2))
sketch1.addConstraint(Sketcher.Constraint("Vertical", 16, 2, 49, 2))
sketch1.addConstraint(Sketcher.Constraint("Vertical", 15, 2, 50, 2))
sketch1.addConstraint(Sketcher.Constraint("Vertical", 14, 2, 51, 2))
sketch1.addConstraint(Sketcher.Constraint("Vertical", 27, 2, 56, 2))
sketch1.addConstraint(Sketcher.Constraint("Vertical", 42, 2, 57, 2))
sketch1.addConstraint(Sketcher.Constraint("Vertical", 41, 2, 58, 2))
sketch1.addConstraint(Sketcher.Constraint("Vertical", 48, 2, 59, 2))
sketch1.addConstraint(Sketcher.Constraint("Vertical", 46, 2, 61, 2))
sketch1.addConstraint(Sketcher.Constraint("Vertical", 61, 2, 64, 2))
sketch1.addConstraint(Sketcher.Constraint("Vertical", 60, 2, 65, 2))
sketch1.addConstraint(Sketcher.Constraint("Vertical", 63, 2, 69, 2))
sketch1.addConstraint(Sketcher.Constraint("Vertical", 53, 2, 73, 2))
sketch1.addConstraint(Sketcher.Constraint("Vertical", 68, 2, 74, 2))
sketch1.addConstraint(Sketcher.Constraint("Vertical", 67, 2, 75, 2))
sketch1.addConstraint(Sketcher.Constraint("Vertical", 66, 2, 76, 2))
sketch1.addConstraint(Sketcher.Constraint("Equal", 5, 8))
sketch1.addConstraint(Sketcher.Constraint("Equal", 3, 10))
sketch1.addConstraint(Sketcher.Constraint("Equal", 11, 15))
sketch1.addConstraint(Sketcher.Constraint("Equal", 15, 19))
sketch1.addConstraint(Sketcher.Constraint("Equal", 19, 23))
sketch1.addConstraint(Sketcher.Constraint("Equal", 23, 27))
sketch1.addConstraint(Sketcher.Constraint("Equal", 51, 53))
sketch1.addConstraint(Sketcher.Constraint("Equal", 28, 54))
sketch1.addConstraint(Sketcher.Constraint("DistanceX", 3, 2, 3, 1, 5.0))
sketch1.addConstraint(Sketcher.Constraint("DistanceX", 5, 1, 5, 2, 10.0))
sketch1.addConstraint(Sketcher.Constraint("DistanceY", 7, 2, 7, 1, 100.0))
sketch1.addConstraint(Sketcher.Constraint("DistanceX", 1, 1, 1, 2, 14.5))
sketch1.addConstraint(Sketcher.Constraint("DistanceX", 11, 1, 11, 2, 0.4))
sketch1.addConstraint(Sketcher.Constraint("DistanceY", 0, 2, 0, 1, 2.7))
sketch1.addConstraint(Sketcher.Constraint("DistanceY", 4, 1, 4, 2, 3.2))
sketch1.addConstraint(Sketcher.Constraint("DistanceY", 21, 1, 21, 2, 13.799999))
sketch1.addConstraint(Sketcher.Constraint("DistanceY", 45, 1, 45, 2, 14.4))
sketch1.addConstraint(Sketcher.Constraint("DistanceY", 63, 1, 63, 2, 10.8))
sketch1.addConstraint(Sketcher.Constraint("DistanceX", 19, 2, -1, 1, 3.0))
sketch1.addConstraint(Sketcher.Constraint("DistanceY", -1, 1, 11, 2, 39.5))
sketch1.addConstraint(Sketcher.Constraint("DistanceY", -1, 1, 13, 2, 25.5))
sketch1.addConstraint(Sketcher.Constraint("DistanceX", 17, 2, -1, 1, 1.8))
sketch1.addConstraint(Sketcher.Constraint("DistanceX", 20, 2, -1, 1, 3.4))
sketch1.addConstraint(Sketcher.Constraint("DistanceY", -1, 1, 27, 2, 54.5))
sketch1.addConstraint(Sketcher.Constraint("DistanceY", -1, 1, 29, 2, 40.5))
sketch1.addConstraint(Sketcher.Constraint("DistanceY", -1, 1, 43, 2, 9.9))
sketch1.addConstraint(Sketcher.Constraint("DistanceY", -1, 1, 53, 2, 66.5))
sketch1.addConstraint(Sketcher.Constraint("DistanceY", -1, 1, 72, 2, 67.5))
sketch1.addConstraint(Sketcher.Constraint("DistanceX", 33, 2, 33, 1, 9.581001))
sketch1.addConstraint(Sketcher.Constraint("DistanceX", 41, 1, 41, 2, 5.906001))
sketch1.addConstraint(Sketcher.Constraint("DistanceX", 17, 2, 17, 1, 13.25068))
sketch1.addConstraint(Sketcher.Constraint("DistanceX", 44, 2, 44, 1, 20.27268))
sketch1.addConstraint(Sketcher.Constraint("DistanceY", 37, 1, 37, 2, 13.833571))
sketch1.addConstraint(Sketcher.Constraint("DistanceX", 25, 1, 25, 2, 9.579657))
sketch1.addConstraint(Sketcher.Constraint("DistanceY", 69, 1, 69, 2, 25.145632))
sketch1.addConstraint(Sketcher.Constraint("DistanceX", -1, 1, 70, 2, 0.804118))
sketch1.addConstraint(Sketcher.Constraint("DistanceX", -1, 1, 71, 2, 1.518031))
sketch1.addConstraint(Sketcher.Constraint("Distance", 43, 14.396384))
pad1 = body.newObject("PartDesign::Pad", "Pad")
pad1.Profile = sketch1
pad1.Length = 15

doc.recompute()
